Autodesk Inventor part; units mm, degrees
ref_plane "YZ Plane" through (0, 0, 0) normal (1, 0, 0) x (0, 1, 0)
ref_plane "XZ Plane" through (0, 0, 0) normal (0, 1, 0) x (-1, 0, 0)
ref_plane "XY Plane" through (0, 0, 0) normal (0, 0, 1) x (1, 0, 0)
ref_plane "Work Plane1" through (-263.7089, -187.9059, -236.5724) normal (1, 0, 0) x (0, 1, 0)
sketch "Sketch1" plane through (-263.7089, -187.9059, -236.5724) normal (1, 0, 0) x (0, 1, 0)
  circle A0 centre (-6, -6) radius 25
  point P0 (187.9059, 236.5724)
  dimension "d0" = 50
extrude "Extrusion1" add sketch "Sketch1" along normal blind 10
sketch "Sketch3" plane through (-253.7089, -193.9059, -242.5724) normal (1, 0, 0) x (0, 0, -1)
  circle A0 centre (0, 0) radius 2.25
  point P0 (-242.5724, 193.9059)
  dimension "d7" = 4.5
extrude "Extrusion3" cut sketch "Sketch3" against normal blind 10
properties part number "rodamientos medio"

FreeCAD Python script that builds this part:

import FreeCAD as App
import Part
import Sketcher

V = App.Vector

doc = App.newDocument("Part")
body = doc.addObject("PartDesign::Body", "Body")

# Sketch on YZ plane
sketch1 = doc.addObject("Sketcher::SketchObject", "Sketch")
body.addObject(sketch1)
sketch1.AttachmentSupport = (doc.YZ_Plane, [""])
sketch1.MapMode = "FlatFace"
sketch1.AttachmentOffset = App.Placement(V(0, 0, -263.7089), App.Rotation())
sketch1.addGeometry(Part.Circle(V(-193.9059, -242.5724, 0), V(0, 0, 1), 25), False)
sketch1.addConstraint(Sketcher.Constraint("Diameter", 0, 50.0))
sketch1.addConstraint(Sketcher.Constraint("DistanceX", 0, 3, -1, 1, 193.906))
sketch1.addConstraint(Sketcher.Constraint("DistanceY", 0, 3, -1, 1, 242.5724))
pad1 = doc.addObject("PartDesign::Pad", "Pad")
body.addObject(pad1)
pad1.Profile = sketch1
pad1.Length = 10

# Sketch on YZ plane
sketch2 = doc.addObject("Sketcher::SketchObject", "Sketch001")
body.addObject(sketch2)
sketch2.AttachmentSupport = (doc.YZ_Plane, [""])
sketch2.MapMode = "FlatFace"
sketch2.AttachmentOffset = App.Placement(V(0, 0, -253.7089), App.Rotation())
sketch2.addGeometry(Part.Circle(V(-193.9059, -242.5724, 0), V(0, 0, 1), 2.25), False)
sketch2.addConstraint(Sketcher.Constraint("Diameter", 0, 4.5))
sketch2.addConstraint(Sketcher.Constraint("DistanceX", 0, 3, -1, 1, 193.906))
sketch2.addConstraint(Sketcher.Constraint("DistanceY", 0, 3, -1, 1, 242.5724))
pocket1 = doc.addObject("PartDesign::Pocket", "Pocket")
body.addObject(pocket1)
pocket1.Profile = sketch2
pocket1.Length = 10

doc.recompute()
